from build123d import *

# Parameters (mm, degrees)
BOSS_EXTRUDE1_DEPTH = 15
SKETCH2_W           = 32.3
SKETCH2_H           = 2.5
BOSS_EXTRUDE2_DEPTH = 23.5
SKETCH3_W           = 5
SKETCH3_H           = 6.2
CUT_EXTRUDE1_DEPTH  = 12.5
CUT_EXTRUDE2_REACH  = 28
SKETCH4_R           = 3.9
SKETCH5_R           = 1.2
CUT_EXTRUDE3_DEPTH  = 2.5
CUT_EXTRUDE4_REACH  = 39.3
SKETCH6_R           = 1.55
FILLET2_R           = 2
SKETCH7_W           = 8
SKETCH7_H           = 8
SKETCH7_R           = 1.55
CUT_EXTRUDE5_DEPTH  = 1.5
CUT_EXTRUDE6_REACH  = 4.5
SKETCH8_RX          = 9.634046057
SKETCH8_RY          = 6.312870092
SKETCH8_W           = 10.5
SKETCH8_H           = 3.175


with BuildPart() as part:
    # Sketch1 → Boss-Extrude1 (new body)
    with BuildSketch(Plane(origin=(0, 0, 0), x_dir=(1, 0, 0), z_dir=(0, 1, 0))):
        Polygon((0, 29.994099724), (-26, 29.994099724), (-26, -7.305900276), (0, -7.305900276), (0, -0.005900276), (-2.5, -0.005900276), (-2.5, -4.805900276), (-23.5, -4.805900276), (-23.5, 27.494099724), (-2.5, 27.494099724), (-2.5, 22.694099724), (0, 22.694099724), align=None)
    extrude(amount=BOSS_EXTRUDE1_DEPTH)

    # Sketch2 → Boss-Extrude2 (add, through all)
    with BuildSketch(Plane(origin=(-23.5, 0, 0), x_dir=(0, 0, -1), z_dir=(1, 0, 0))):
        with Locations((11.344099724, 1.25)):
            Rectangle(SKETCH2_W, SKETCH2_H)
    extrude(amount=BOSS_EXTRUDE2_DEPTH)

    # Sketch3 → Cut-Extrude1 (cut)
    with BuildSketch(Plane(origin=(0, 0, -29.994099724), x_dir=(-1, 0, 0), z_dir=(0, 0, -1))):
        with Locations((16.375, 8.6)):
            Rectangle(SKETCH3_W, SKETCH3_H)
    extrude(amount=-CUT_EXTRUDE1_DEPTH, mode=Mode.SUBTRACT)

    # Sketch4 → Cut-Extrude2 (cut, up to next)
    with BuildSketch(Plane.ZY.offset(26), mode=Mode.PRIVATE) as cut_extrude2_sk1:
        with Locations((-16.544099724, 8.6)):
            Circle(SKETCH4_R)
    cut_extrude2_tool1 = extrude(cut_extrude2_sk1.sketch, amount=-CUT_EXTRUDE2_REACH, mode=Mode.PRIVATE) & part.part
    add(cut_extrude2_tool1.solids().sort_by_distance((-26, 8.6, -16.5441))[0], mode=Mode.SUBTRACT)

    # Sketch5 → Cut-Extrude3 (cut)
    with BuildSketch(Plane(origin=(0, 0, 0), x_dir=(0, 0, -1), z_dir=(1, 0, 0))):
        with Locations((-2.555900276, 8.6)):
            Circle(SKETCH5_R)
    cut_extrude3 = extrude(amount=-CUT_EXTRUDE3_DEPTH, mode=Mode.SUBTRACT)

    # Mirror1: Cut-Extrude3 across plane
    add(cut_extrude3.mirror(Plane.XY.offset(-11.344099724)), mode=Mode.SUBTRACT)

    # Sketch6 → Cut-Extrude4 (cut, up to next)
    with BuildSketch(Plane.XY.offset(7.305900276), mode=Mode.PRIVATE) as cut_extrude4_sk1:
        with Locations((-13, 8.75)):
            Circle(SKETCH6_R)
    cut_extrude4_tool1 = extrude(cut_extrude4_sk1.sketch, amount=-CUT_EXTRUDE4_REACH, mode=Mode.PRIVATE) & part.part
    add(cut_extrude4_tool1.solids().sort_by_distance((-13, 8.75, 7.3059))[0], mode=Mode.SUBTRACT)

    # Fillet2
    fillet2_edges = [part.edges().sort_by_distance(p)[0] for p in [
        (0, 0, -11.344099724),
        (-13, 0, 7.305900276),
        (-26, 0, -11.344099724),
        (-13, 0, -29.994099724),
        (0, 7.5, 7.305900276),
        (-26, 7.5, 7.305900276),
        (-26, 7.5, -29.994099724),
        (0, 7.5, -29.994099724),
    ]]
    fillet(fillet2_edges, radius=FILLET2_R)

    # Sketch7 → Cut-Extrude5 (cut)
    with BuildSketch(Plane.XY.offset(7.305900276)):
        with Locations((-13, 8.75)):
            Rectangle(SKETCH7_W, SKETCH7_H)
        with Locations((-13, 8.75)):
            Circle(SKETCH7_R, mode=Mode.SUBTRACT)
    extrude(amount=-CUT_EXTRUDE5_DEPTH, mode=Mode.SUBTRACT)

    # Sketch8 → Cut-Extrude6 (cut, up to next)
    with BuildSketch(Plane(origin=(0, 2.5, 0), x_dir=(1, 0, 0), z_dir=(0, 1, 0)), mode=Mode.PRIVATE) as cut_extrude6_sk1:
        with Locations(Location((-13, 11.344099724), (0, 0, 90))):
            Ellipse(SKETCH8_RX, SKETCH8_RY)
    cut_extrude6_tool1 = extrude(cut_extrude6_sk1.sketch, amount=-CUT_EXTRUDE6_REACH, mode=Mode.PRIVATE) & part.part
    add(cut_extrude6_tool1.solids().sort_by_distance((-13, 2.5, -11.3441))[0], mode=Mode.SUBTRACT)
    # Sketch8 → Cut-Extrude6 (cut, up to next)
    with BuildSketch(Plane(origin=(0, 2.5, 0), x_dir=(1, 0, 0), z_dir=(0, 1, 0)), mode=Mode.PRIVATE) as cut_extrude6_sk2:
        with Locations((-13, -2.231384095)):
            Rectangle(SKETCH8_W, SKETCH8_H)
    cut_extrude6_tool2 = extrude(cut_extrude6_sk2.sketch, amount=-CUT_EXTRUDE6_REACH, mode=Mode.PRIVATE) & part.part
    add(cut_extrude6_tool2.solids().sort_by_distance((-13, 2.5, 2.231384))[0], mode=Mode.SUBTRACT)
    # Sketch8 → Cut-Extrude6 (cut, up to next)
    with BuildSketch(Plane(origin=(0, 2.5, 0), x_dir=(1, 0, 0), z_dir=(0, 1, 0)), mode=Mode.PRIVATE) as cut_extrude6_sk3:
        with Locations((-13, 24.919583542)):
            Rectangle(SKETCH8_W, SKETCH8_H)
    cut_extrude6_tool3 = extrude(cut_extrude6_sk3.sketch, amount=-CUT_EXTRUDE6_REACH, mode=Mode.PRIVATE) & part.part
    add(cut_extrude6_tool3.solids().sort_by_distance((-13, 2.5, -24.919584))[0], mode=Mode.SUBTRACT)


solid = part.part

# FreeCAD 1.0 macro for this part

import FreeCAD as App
import Part
import Sketcher
from FreeCAD import Vector


def edges_at(feature, points):
    """Names of the edges that pass closest to the given points."""
    edges = feature.Shape.Edges
    near = lambda p: min(range(len(edges)), key=lambda i: edges[i].distToShape(Part.Vertex(*p))[0])
    return sorted({f"Edge{near(p) + 1}" for p in points})

doc = App.newDocument("Part")
body = doc.addObject("PartDesign::Body", "Body")

sketch1 = doc.addObject("Sketcher::SketchObject", "Sketch")
body.addObject(sketch1)
sketch1.AttachmentSupport = (doc.XZ_Plane, [""])
sketch1.MapMode = "FlatFace"
sketch1.addGeometry([
    Part.LineSegment(Vector(0, -30, 0), Vector(-26, -30, 0)),
    Part.LineSegment(Vector(-26, -30, 0), Vector(-26, 7.3, 0)),
    Part.LineSegment(Vector(-26, 7.3, 0), Vector(0, 7.3, 0)),
    Part.LineSegment(Vector(0, 7.3, 0), Vector(0, 0, 0)),
    Part.LineSegment(Vector(0, 0, 0), Vector(-2.5, 0, 0)),
    Part.LineSegment(Vector(-2.5, 0, 0), Vector(-2.5, 4.8, 0)),
    Part.LineSegment(Vector(-2.5, 4.8, 0), Vector(-23.5, 4.8, 0)),
    Part.LineSegment(Vector(-23.5, 4.8, 0), Vector(-23.5, -27.5, 0)),
    Part.LineSegment(Vector(-23.5, -27.5, 0), Vector(-2.5, -27.5, 0)),
    Part.LineSegment(Vector(-2.5, -27.5, 0), Vector(-2.5, -22.7, 0)),
    Part.LineSegment(Vector(-2.5, -22.7, 0), Vector(0, -22.7, 0)),
    Part.LineSegment(Vector(0, -22.7, 0), Vector(0, -30, 0)),
], False)
sketch1.addConstraint([
    Sketcher.Constraint("Coincident", 0, 2, 1, 1),
    Sketcher.Constraint("Coincident", 1, 2, 2, 1),
    Sketcher.Constraint("Coincident", 2, 2, 3, 1),
    Sketcher.Constraint("Coincident", 3, 2, 4, 1),
    Sketcher.Constraint("Coincident", 4, 2, 5, 1),
    Sketcher.Constraint("Coincident", 5, 2, 6, 1),
    Sketcher.Constraint("Coincident", 6, 2, 7, 1),
    Sketcher.Constraint("Coincident", 7, 2, 8, 1),
    Sketcher.Constraint("Coincident", 8, 2, 9, 1),
    Sketcher.Constraint("Coincident", 9, 2, 10, 1),
    Sketcher.Constraint("Coincident", 10, 2, 11, 1),
    Sketcher.Constraint("Coincident", 11, 2, 0, 1),
    Sketcher.Constraint("Horizontal", 0),
    Sketcher.Constraint("Vertical", 1),
    Sketcher.Constraint("Horizontal", 2),
    Sketcher.Constraint("Vertical", 3),
    Sketcher.Constraint("Horizontal", 4),
    Sketcher.Constraint("Vertical", 5),
    Sketcher.Constraint("Horizontal", 6),
    Sketcher.Constraint("Vertical", 7),
    Sketcher.Constraint("Horizontal", 8),
    Sketcher.Constraint("Vertical", 9),
    Sketcher.Constraint("Horizontal", 10),
    Sketcher.Constraint("Vertical", 11),
    Sketcher.Constraint("PointOnObject", 2, 2, -2),
    Sketcher.Constraint("PointOnObject", 10, 2, -2),
    Sketcher.Constraint("Vertical", 5, 2, 8, 2),
    Sketcher.Constraint("Equal", 5, 9),
    Sketcher.Constraint("Equal", 3, 11),
    Sketcher.Constraint("DistanceX", 0, 2, 0, 1, 26.0),
    Sketcher.Constraint("DistanceX", 6, 2, 6, 1, 21.0),
    Sketcher.Constraint("DistanceX", 4, 2, 4, 1, 2.5),
    Sketcher.Constraint("DistanceY", 1, 1, 1, 2, 37.3),
    Sketcher.Constraint("DistanceY", 3, 2, 3, 1, 7.3),
    Sketcher.Constraint("DistanceY", 5, 1, 5, 2, 4.8),
    Sketcher.Constraint("DistanceY", 0, 2, -1, 1, 29.9941),
])
pad1 = doc.addObject("PartDesign::Pad", "Pad")
body.addObject(pad1)
pad1.Profile = sketch1
pad1.Length = 15
pad1.Reversed = True

sketch2 = doc.addObject("Sketcher::SketchObject", "Sketch001")
body.addObject(sketch2)
sketch2.AttachmentSupport = (doc.YZ_Plane, [""])
sketch2.MapMode = "FlatFace"
sketch2.AttachmentOffset = App.Placement(Vector(0, 0, -23.5), App.Rotation())
sketch2.addGeometry([
    Part.LineSegment(Vector(2.5, 4.8, 0), Vector(0, 4.8, 0)),
    Part.LineSegment(Vector(0, 4.8, 0), Vector(0, -27.5, 0)),
    Part.LineSegment(Vector(0, -27.5, 0), Vector(2.5, -27.5, 0)),
    Part.LineSegment(Vector(2.5, -27.5, 0), Vector(2.5, 4.8, 0)),
], False)
sketch2.addConstraint([
    Sketcher.Constraint("Coincident", 0, 2, 1, 1),
    Sketcher.Constraint("Coincident", 1, 2, 2, 1),
    Sketcher.Constraint("Coincident", 2, 2, 3, 1),
    Sketcher.Constraint("Coincident", 3, 2, 0, 1),
    Sketcher.Constraint("Horizontal", 0),
    Sketcher.Constraint("Vertical", 1),
    Sketcher.Constraint("Horizontal", 2),
    Sketcher.Constraint("Vertical", 3),
    Sketcher.Constraint("PointOnObject", 0, 2, -2),
    Sketcher.Constraint("DistanceX", 0, 2, 0, 1, 2.5),
    Sketcher.Constraint("DistanceY", 1, 2, 1, 1, 32.3),
    Sketcher.Constraint("DistanceY", -1, 1, 0, 2, 4.8059),
])
pad2 = doc.addObject("PartDesign::Pad", "Pad001")
body.addObject(pad2)
pad2.Profile = sketch2
pad2.Length = 23.5

sketch3 = doc.addObject("Sketcher::SketchObject", "Sketch002")
body.addObject(sketch3)
sketch3.AttachmentSupport = (doc.XY_Plane, [""])
sketch3.MapMode = "FlatFace"
sketch3.AttachmentOffset = App.Placement(Vector(0, 0, -29.9941), App.Rotation())
sketch3.addGeometry([
    Part.LineSegment(Vector(-14, 12, 0), Vector(-14, 6, 0)),
    Part.LineSegment(Vector(-14, 6, 0), Vector(-19, 6, 0)),
    Part.LineSegment(Vector(-19, 6, 0), Vector(-19, 12, 0)),
    Part.LineSegment(Vector(-19, 12, 0), Vector(-14, 12, 0)),
], False)
sketch3.addConstraint([
    Sketcher.Constraint("Coincident", 0, 2, 1, 1),
    Sketcher.Constraint("Coincident", 1, 2, 2, 1),
    Sketcher.Constraint("Coincident", 2, 2, 3, 1),
    Sketcher.Constraint("Coincident", 3, 2, 0, 1),
    Sketcher.Constraint("Vertical", 0),
    Sketcher.Constraint("Horizontal", 1),
    Sketcher.Constraint("Vertical", 2),
    Sketcher.Constraint("Horizontal", 3),
    Sketcher.Constraint("DistanceX", 1, 2, 1, 1, 5.0),
    Sketcher.Constraint("DistanceY", 0, 2, 0, 1, 6.2),
    Sketcher.Constraint("DistanceY", -1, 1, 0, 2, 5.5),
    Sketcher.Constraint("DistanceX", 0, 2, -1, 1, 13.875),
])
pocket1 = doc.addObject("PartDesign::Pocket", "Pocket")
body.addObject(pocket1)
pocket1.Profile = sketch3
pocket1.Length = 12.5
pocket1.Reversed = True

sketch4 = doc.addObject("Sketcher::SketchObject", "Sketch003")
body.addObject(sketch4)
sketch4.AttachmentSupport = (doc.YZ_Plane, [""])
sketch4.MapMode = "FlatFace"
sketch4.AttachmentOffset = App.Placement(Vector(0, 0, -26), App.Rotation())
sketch4.addGeometry(Part.Circle(Vector(8.6, -16.5, 0), Vector(0, 0, 1), 3.9), False)
sketch4.addConstraint([
    Sketcher.Constraint("Diameter", 0, 7.8),
    Sketcher.Constraint("DistanceX", -1, 1, 0, 3, 8.6),
    Sketcher.Constraint("DistanceY", 0, 3, -1, 1, 16.5441),
])
pocket2 = doc.addObject("PartDesign::Pocket", "Pocket001")
body.addObject(pocket2)
pocket2.Profile = sketch4
pocket2.Type = "UpToFirst"
pocket2.Reversed = True

sketch5 = doc.addObject("Sketcher::SketchObject", "Sketch004")
body.addObject(sketch5)
sketch5.AttachmentSupport = (doc.YZ_Plane, [""])
sketch5.MapMode = "FlatFace"
sketch5.addGeometry(Part.Circle(Vector(8.6, 2.6, 0), Vector(0, 0, 1), 1.2), False)
sketch5.addConstraint([
    Sketcher.Constraint("Diameter", 0, 2.4),
    Sketcher.Constraint("DistanceX", -1, 1, 0, 3, 8.6),
    Sketcher.Constraint("DistanceY", -1, 1, 0, 3, 2.5559),
])
pocket3 = doc.addObject("PartDesign::Pocket", "Pocket002")
body.addObject(pocket3)
pocket3.Profile = sketch5
pocket3.Length = 2.5
doc.recompute()

datumplane = doc.addObject("PartDesign::Plane", "DatumPlane")
body.addObject(datumplane)
datumplane.AttachmentSupport = (doc.XY_Plane, [""])
datumplane.MapMode = "FlatFace"
datumplane.AttachmentOffset = App.Placement(Vector(0, 0, -11.3441), App.Rotation())
mirrored = doc.addObject("PartDesign::Mirrored", "Mirrored")
body.addObject(mirrored)
mirrored.Originals = [pocket3]
mirrored.MirrorPlane = (datumplane, [""])
body.Tip = mirrored

sketch6 = doc.addObject("Sketcher::SketchObject", "Sketch005")
body.addObject(sketch6)
sketch6.AttachmentSupport = (doc.XY_Plane, [""])
sketch6.MapMode = "FlatFace"
sketch6.AttachmentOffset = App.Placement(Vector(0, 0, 7.3059), App.Rotation())
sketch6.addGeometry(Part.Circle(Vector(-13, 8.8, 0), Vector(0, 0, 1), 1.6), False)
sketch6.addConstraint([
    Sketcher.Constraint("Diameter", 0, 3.1),
    Sketcher.Constraint("DistanceX", 0, 3, -1, 1, 13.0),
    Sketcher.Constraint("DistanceY", -1, 1, 0, 3, 8.75),
])
pocket4 = doc.addObject("PartDesign::Pocket", "Pocket003")
body.addObject(pocket4)
pocket4.Profile = sketch6
pocket4.Type = "UpToFirst"
doc.recompute()

fillet = doc.addObject("PartDesign::Fillet", "Fillet")
body.addObject(fillet)
fillet.Base = (pocket4, edges_at(pocket4, [
    (0, 0, -11.344),
    (-13, 0, 7.306),
    (-26, 0, -11.344),
    (-13, 0, -29.994),
    (0, 7.5, 7.306),
    (-26, 7.5, 7.306),
    (-26, 7.5, -29.994),
    (0, 7.5, -29.994),
]))
fillet.Radius = 2

sketch7 = doc.addObject("Sketcher::SketchObject", "Sketch006")
body.addObject(sketch7)
sketch7.AttachmentSupport = (doc.XY_Plane, [""])
sketch7.MapMode = "FlatFace"
sketch7.AttachmentOffset = App.Placement(Vector(0, 0, 7.3059), App.Rotation())
sketch7.addGeometry([
    Part.LineSegment(Vector(-17, 12.8, 0), Vector(-17, 4.8, 0)),
    Part.LineSegment(Vector(-17, 4.8, 0), Vector(-9, 4.8, 0)),
    Part.LineSegment(Vector(-9, 4.8, 0), Vector(-9, 12.8, 0)),
    Part.LineSegment(Vector(-9, 12.8, 0), Vector(-17, 12.8, 0)),
    Part.Circle(Vector(-13, 8.8, 0), Vector(0, 0, 1), 1.6),
], False)
sketch7.addConstraint([
    Sketcher.Constraint("Coincident", 0, 2, 1, 1),
    Sketcher.Constraint("Coincident", 1, 2, 2, 1),
    Sketcher.Constraint("Coincident", 2, 2, 3, 1),
    Sketcher.Constraint("Coincident", 3, 2, 0, 1),
    Sketcher.Constraint("Vertical", 0),
    Sketcher.Constraint("Horizontal", 1),
    Sketcher.Constraint("Vertical", 2),
    Sketcher.Constraint("Horizontal", 3),
    Sketcher.Constraint("Equal", 3, 0),
    Sketcher.Constraint("Diameter", 4, 3.1),
    Sketcher.Constraint("DistanceX", 1, 1, 1, 2, 8.0),
    Sketcher.Constraint("DistanceX", 4, 3, -1, 1, 13.0),
    Sketcher.Constraint("DistanceX", 0, 2, -1, 1, 17.0),
    Sketcher.Constraint("DistanceY", 0, 2, 4, 3, 4.0),
    Sketcher.Constraint("DistanceY", -1, 1, 4, 3, 8.75),
])
pocket5 = doc.addObject("PartDesign::Pocket", "Pocket004")
body.addObject(pocket5)
pocket5.Profile = sketch7
pocket5.Length = 1.5

sketch8 = doc.addObject("Sketcher::SketchObject", "Sketch007")
body.addObject(sketch8)
sketch8.AttachmentSupport = (doc.XZ_Plane, [""])
sketch8.MapMode = "FlatFace"
sketch8.AttachmentOffset = App.Placement(Vector(0, 0, -2.5), App.Rotation())
sketch8.addGeometry(Part.Ellipse(Vector(-13, -20.978146, 0), Vector(-6.68713, -11.3441, 0), Vector(-13, -11.3441, 0)), False)
sketch8.addConstraint(Sketcher.Constraint("Block", 0))
pocket6 = doc.addObject("PartDesign::Pocket", "Pocket005")
body.addObject(pocket6)
pocket6.Profile = sketch8
pocket6.Type = "UpToFirst"
pocket6.Reversed = True

sketch9 = doc.addObject("Sketcher::SketchObject", "Sketch008")
body.addObject(sketch9)
sketch9.AttachmentSupport = (doc.XZ_Plane, [""])
sketch9.MapMode = "FlatFace"
sketch9.AttachmentOffset = App.Placement(Vector(0, 0, -2.5), App.Rotation())
sketch9.addGeometry([
    Part.LineSegment(Vector(-18.2, 0.6, 0), Vector(-18.2, 3.8, 0)),
    Part.LineSegment(Vector(-18.2, 3.8, 0), Vector(-7.8, 3.8, 0)),
    Part.LineSegment(Vector(-7.8, 3.8, 0), Vector(-7.8, 0.6, 0)),
    Part.LineSegment(Vector(-7.8, 0.6, 0), Vector(-18.2, 0.6, 0)),
], False)
sketch9.addConstraint([
    Sketcher.Constraint("Coincident", 0, 2, 1, 1),
    Sketcher.Constraint("Coincident", 1, 2, 2, 1),
    Sketcher.Constraint("Coincident", 2, 2, 3, 1),
    Sketcher.Constraint("Coincident", 3, 2, 0, 1),
    Sketcher.Constraint("Vertical", 0),
    Sketcher.Constraint("Horizontal", 1),
    Sketcher.Constraint("Vertical", 2),
    Sketcher.Constraint("Horizontal", 3),
    Sketcher.Constraint("DistanceX", 1, 1, 1, 2, 10.5),
    Sketcher.Constraint("DistanceY", 0, 1, 0, 2, 3.175),
    Sketcher.Constraint("DistanceX", 0, 2, -1, 1, 18.25),
    Sketcher.Constraint("DistanceY", -1, 1, 0, 2, 3.818884),
])
pocket7 = doc.addObject("PartDesign::Pocket", "Pocket006")
body.addObject(pocket7)
pocket7.Profile = sketch9
pocket7.Type = "UpToFirst"
pocket7.Reversed = True

sketch10 = doc.addObject("Sketcher::SketchObject", "Sketch009")
body.addObject(sketch10)
sketch10.AttachmentSupport = (doc.XZ_Plane, [""])
sketch10.MapMode = "FlatFace"
sketch10.AttachmentOffset = App.Placement(Vector(0, 0, -2.5), App.Rotation())
sketch10.addGeometry([
    Part.LineSegment(Vector(-18.2, -26.5, 0), Vector(-18.2, -23.3, 0)),
    Part.LineSegment(Vector(-18.2, -23.3, 0), Vector(-7.8, -23.3, 0)),
    Part.LineSegment(Vector(-7.8, -23.3, 0), Vector(-7.8, -26.5, 0)),
    Part.LineSegment(Vector(-7.8, -26.5, 0), Vector(-18.2, -26.5, 0)),
], False)
sketch10.addConstraint([
    Sketcher.Constraint("Coincident", 0, 2, 1, 1),
    Sketcher.Constraint("Coincident", 1, 2, 2, 1),
    Sketcher.Constraint("Coincident", 2, 2, 3, 1),
    Sketcher.Constraint("Coincident", 3, 2, 0, 1),
    Sketcher.Constraint("Vertical", 0),
    Sketcher.Constraint("Horizontal", 1),
    Sketcher.Constraint("Vertical", 2),
    Sketcher.Constraint("Horizontal", 3),
    Sketcher.Constraint("DistanceX", 1, 1, 1, 2, 10.5),
    Sketcher.Constraint("DistanceY", 0, 1, 0, 2, 3.175),
    Sketcher.Constraint("DistanceX", 0, 2, -1, 1, 18.25),
    Sketcher.Constraint("DistanceY", 0, 2, -1, 1, 23.332084),
])
pocket8 = doc.addObject("PartDesign::Pocket", "Pocket007")
body.addObject(pocket8)
pocket8.Profile = sketch10
pocket8.Type = "UpToFirst"
pocket8.Reversed = True

doc.recompute()
